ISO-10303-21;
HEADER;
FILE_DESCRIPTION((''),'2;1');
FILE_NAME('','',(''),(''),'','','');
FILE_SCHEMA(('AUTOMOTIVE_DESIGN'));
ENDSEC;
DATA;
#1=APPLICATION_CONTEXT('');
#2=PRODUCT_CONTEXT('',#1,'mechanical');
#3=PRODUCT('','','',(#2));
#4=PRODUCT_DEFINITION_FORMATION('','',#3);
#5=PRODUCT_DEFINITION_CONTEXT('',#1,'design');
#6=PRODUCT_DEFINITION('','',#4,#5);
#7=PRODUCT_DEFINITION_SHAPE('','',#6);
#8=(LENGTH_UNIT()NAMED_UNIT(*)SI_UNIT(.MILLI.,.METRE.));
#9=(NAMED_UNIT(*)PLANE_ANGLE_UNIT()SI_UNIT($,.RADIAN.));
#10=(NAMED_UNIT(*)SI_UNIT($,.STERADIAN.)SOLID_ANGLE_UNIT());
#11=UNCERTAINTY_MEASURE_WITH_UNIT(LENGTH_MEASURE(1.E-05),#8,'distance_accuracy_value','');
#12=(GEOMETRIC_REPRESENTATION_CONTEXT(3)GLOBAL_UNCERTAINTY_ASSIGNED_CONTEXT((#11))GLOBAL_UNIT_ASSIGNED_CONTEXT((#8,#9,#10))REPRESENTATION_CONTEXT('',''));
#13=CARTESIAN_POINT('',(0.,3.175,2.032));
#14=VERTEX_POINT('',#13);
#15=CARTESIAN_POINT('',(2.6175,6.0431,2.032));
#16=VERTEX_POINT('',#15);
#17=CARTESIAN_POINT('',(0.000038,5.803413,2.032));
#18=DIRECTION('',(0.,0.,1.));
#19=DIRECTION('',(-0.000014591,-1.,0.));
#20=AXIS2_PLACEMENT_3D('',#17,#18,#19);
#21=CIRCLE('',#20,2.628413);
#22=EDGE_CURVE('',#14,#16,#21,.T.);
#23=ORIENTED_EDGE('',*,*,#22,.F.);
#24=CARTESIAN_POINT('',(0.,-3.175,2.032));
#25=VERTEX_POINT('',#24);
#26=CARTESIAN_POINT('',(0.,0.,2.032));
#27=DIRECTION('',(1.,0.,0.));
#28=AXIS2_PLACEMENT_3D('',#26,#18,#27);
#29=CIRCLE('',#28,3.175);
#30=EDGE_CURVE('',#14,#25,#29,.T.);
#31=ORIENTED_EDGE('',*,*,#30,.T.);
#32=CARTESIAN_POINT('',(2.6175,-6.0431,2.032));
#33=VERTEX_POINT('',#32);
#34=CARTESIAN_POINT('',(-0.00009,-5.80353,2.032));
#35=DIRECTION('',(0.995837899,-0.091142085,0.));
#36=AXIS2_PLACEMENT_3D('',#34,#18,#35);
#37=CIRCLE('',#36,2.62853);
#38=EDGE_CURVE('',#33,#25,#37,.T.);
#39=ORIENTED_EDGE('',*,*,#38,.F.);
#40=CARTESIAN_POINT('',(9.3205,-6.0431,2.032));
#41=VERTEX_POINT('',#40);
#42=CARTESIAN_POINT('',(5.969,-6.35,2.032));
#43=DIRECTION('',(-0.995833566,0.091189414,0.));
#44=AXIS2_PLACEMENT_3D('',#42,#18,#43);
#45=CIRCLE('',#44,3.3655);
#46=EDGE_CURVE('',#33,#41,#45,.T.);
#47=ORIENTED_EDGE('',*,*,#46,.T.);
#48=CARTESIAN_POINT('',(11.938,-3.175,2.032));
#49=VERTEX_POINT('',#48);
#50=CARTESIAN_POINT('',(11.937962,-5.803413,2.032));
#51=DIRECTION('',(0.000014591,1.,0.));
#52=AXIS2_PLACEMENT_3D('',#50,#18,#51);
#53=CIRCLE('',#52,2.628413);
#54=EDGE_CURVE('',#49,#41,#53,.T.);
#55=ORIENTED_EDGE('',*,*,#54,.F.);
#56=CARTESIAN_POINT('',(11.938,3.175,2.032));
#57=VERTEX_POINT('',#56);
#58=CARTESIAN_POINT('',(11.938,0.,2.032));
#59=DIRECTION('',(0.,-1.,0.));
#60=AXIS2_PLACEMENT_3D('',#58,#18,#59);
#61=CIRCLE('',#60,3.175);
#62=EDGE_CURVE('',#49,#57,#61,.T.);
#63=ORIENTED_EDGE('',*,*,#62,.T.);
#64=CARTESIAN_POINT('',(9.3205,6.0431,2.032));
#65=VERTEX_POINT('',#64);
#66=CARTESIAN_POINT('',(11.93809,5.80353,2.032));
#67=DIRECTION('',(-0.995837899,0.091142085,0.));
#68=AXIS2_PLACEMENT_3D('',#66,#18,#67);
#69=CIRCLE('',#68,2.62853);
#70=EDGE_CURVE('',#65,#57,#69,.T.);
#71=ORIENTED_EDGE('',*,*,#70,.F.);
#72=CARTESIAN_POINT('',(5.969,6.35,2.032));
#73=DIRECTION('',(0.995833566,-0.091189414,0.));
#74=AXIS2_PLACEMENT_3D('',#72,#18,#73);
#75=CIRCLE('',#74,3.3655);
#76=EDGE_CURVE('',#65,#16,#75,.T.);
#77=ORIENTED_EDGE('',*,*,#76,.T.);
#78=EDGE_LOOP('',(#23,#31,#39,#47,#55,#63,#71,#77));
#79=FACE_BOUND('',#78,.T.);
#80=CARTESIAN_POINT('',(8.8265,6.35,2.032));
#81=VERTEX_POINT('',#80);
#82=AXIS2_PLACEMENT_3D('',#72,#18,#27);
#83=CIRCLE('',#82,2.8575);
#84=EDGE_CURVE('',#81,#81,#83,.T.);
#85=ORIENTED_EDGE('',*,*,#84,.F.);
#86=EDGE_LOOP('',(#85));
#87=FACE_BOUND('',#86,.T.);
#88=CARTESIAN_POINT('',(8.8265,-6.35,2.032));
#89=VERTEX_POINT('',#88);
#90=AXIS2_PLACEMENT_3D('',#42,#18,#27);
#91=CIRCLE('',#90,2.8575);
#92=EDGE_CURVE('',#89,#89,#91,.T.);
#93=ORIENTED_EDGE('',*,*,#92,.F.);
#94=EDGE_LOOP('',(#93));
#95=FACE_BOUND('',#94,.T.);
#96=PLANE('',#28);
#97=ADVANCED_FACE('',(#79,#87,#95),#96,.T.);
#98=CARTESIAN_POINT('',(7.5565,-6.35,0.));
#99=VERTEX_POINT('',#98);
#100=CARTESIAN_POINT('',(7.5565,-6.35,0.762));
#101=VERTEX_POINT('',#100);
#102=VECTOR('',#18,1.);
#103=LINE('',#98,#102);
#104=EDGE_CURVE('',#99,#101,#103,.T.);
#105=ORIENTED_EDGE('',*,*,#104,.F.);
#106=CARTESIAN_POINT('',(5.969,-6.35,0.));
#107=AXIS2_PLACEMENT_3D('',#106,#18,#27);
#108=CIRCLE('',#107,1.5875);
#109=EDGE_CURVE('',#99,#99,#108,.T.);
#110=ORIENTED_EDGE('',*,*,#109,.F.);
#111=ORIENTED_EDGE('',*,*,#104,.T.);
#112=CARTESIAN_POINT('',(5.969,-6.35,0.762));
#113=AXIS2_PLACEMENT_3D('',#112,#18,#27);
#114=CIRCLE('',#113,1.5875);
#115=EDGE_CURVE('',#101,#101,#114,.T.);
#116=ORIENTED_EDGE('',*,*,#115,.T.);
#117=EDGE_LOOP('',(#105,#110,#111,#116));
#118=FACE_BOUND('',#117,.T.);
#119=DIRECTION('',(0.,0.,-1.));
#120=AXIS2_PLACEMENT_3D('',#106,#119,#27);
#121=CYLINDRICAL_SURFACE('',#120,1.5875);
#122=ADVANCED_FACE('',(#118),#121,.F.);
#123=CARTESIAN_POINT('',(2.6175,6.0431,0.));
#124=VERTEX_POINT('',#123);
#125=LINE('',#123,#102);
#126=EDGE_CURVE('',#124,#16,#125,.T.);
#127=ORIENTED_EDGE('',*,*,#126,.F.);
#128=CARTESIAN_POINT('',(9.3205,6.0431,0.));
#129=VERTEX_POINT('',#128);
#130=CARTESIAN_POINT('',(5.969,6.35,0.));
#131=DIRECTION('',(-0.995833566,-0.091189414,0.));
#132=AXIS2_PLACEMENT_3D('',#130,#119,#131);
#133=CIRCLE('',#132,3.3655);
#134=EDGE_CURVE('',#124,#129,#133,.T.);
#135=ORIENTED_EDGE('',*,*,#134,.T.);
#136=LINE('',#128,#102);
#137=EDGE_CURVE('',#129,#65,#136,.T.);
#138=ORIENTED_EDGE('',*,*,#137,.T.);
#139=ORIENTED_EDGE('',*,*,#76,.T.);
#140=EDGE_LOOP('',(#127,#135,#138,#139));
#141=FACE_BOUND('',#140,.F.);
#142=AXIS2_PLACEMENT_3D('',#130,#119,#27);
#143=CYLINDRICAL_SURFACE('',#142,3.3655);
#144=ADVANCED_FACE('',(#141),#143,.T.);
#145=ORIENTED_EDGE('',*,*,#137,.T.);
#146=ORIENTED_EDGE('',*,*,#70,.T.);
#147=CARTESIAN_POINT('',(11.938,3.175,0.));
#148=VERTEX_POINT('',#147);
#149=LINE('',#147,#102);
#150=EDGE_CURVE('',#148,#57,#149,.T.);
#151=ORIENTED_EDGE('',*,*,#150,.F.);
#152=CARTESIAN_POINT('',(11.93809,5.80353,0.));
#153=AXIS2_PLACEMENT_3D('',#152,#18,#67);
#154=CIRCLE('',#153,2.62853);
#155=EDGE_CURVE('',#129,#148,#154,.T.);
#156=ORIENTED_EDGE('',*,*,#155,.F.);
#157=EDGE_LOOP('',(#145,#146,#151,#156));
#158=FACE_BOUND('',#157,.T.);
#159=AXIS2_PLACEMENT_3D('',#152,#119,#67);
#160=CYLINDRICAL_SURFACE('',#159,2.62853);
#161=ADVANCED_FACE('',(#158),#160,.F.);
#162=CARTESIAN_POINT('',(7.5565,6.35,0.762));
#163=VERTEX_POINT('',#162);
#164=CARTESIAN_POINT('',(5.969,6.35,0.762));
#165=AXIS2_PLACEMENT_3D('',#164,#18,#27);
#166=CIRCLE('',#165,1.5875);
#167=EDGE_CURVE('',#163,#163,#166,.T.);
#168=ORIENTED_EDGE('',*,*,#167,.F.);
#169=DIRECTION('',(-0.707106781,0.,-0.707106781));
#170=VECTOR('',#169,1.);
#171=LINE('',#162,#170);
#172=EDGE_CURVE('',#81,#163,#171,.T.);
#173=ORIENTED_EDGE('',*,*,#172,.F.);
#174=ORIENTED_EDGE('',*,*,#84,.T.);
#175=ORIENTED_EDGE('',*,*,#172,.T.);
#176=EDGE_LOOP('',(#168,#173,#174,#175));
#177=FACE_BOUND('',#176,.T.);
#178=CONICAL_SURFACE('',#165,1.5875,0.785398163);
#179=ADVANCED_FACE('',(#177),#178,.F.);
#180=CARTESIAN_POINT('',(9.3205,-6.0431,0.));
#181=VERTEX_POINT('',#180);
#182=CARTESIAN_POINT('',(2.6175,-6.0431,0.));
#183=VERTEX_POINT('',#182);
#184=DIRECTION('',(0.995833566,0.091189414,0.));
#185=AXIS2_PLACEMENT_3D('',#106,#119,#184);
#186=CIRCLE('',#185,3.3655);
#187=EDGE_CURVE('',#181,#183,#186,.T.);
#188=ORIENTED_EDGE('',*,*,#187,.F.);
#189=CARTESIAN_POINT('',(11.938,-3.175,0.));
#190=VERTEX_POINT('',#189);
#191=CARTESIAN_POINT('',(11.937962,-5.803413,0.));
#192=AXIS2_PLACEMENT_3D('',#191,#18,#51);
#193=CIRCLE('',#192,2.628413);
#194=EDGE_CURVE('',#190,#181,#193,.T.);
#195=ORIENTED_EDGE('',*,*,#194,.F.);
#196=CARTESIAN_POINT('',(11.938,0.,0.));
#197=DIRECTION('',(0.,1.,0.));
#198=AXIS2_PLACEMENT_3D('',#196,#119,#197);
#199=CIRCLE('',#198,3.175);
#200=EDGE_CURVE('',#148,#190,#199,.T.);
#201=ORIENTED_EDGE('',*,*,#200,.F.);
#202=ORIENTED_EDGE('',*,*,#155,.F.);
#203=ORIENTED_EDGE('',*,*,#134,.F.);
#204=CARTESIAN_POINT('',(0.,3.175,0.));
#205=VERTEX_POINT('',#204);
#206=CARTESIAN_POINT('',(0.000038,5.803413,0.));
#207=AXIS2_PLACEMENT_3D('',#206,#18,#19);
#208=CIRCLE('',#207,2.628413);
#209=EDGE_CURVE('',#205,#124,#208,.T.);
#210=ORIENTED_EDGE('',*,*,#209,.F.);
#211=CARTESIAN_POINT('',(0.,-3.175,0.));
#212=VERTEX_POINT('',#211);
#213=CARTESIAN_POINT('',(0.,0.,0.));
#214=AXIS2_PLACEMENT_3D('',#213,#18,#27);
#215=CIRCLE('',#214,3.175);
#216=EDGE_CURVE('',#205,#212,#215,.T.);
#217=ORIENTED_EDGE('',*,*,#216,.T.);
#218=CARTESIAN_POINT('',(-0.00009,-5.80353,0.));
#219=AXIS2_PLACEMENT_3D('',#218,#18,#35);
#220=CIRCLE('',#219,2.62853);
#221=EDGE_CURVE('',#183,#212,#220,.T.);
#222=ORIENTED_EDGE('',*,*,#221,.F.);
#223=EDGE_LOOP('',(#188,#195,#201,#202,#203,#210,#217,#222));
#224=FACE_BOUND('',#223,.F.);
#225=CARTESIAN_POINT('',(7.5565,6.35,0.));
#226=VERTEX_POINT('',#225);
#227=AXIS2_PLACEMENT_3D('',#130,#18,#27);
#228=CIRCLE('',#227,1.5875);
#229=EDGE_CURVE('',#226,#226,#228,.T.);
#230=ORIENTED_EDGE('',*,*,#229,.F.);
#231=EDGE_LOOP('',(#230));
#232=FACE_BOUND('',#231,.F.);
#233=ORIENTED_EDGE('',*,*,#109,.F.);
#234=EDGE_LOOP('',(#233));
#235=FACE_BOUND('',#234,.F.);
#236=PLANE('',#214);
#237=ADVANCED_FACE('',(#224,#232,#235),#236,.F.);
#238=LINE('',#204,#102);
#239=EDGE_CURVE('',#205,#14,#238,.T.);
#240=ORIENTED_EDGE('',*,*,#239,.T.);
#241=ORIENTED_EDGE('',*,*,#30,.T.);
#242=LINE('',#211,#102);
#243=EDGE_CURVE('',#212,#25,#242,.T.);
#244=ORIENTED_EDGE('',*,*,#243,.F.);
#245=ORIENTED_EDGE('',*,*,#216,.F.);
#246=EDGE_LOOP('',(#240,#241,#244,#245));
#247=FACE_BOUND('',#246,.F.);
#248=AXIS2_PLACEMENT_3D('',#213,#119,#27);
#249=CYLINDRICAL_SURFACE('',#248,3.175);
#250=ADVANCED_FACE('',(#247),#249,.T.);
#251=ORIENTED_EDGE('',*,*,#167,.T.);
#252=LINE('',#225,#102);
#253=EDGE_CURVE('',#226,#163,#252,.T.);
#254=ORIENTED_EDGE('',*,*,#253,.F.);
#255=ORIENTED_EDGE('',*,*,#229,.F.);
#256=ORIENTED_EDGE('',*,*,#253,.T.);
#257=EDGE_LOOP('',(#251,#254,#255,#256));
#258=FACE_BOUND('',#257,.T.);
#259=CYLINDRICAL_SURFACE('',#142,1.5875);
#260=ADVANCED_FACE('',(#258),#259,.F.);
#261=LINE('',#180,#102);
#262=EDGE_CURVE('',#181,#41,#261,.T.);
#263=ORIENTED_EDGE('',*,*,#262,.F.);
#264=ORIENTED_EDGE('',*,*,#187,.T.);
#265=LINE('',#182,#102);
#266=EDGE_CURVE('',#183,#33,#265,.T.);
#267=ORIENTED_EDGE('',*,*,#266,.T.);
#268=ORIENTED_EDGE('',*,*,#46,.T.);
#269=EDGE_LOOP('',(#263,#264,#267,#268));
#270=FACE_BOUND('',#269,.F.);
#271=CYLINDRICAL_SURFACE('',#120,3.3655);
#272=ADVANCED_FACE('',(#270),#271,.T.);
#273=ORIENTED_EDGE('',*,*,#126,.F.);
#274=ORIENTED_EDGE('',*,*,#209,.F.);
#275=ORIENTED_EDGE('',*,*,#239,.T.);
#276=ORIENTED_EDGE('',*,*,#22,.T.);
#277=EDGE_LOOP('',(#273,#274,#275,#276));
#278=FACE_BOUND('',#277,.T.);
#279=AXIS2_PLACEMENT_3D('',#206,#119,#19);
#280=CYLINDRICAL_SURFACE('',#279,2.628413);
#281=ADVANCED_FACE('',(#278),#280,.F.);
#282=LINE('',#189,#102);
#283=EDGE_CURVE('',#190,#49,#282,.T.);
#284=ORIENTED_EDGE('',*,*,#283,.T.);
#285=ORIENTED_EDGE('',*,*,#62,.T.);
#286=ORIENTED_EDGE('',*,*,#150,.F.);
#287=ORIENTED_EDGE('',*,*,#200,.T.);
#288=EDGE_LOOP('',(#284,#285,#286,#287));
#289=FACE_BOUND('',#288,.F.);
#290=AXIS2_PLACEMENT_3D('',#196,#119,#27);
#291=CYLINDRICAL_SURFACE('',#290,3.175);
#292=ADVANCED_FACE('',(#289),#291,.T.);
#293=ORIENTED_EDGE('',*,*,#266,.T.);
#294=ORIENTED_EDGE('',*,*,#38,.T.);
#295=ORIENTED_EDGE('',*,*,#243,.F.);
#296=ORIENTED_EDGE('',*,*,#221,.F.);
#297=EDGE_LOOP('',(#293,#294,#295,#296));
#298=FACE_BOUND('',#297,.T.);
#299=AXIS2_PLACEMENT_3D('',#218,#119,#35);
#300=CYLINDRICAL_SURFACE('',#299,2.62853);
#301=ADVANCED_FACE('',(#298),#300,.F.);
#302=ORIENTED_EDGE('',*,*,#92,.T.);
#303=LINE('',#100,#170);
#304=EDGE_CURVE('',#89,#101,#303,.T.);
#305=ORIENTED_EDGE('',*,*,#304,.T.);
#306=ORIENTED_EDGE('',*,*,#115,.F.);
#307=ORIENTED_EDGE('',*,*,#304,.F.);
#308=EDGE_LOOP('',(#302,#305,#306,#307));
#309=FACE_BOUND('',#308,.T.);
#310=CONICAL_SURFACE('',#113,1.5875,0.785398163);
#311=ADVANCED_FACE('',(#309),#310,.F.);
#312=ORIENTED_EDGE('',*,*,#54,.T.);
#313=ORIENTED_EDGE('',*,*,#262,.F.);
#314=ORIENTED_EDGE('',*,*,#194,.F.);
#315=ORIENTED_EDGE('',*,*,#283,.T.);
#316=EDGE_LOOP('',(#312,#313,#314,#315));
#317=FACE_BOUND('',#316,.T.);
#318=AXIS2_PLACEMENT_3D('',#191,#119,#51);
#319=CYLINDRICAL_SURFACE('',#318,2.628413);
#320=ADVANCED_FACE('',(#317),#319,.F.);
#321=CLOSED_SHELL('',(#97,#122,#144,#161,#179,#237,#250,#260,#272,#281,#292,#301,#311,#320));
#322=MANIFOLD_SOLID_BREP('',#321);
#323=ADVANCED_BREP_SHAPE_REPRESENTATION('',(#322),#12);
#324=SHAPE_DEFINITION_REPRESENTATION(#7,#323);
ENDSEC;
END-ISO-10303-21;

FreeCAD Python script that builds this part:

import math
import FreeCAD as App
import Part
import Sketcher
Q = App.Units.Quantity


def edges_at(feature, points):
    """Names of the edges that pass closest to the given points."""
    edges = feature.Shape.Edges
    near = lambda p: min(range(len(edges)), key=lambda i: edges[i].distToShape(Part.Vertex(*p))[0])
    return sorted({f"Edge{near(p) + 1}" for p in points})

doc = App.newDocument("Part")
body = doc.addObject("PartDesign::Body", "Body")

sketch1 = body.newObject("Sketcher::SketchObject", "Sketch")
sketch1.AttachmentSupport = (doc.getObject("XY_Plane"), [""])
sketch1.MapMode = "FlatFace"
sketch1.addGeometry([
    Part.ArcOfCircle(Part.Circle(App.Vector(0, 0, 0), App.Vector(0, 0, 1), 3.2), math.radians(90), math.radians(270)),
    Part.ArcOfCircle(Part.Circle(App.Vector(0, -5.8, 0), App.Vector(0, 0, 1), 2.6), math.radians(-5), math.radians(90)),
    Part.ArcOfCircle(Part.Circle(App.Vector(6, -6.3, 0), App.Vector(0, 0, 1), 3.4), math.radians(175), math.radians(365)),
    Part.ArcOfCircle(Part.Circle(App.Vector(11.9, -5.8, 0), App.Vector(0, 0, 1), 2.6), math.radians(90), math.radians(185)),
    Part.ArcOfCircle(Part.Circle(App.Vector(11.9, 0, 0), App.Vector(0, 0, 1), 3.2), math.radians(-90), math.radians(90)),
    Part.ArcOfCircle(Part.Circle(App.Vector(11.9, 5.8, 0), App.Vector(0, 0, 1), 2.6), math.radians(175), math.radians(270)),
    Part.ArcOfCircle(Part.Circle(App.Vector(6, 6.3, 0), App.Vector(0, 0, 1), 3.4), math.radians(-5), math.radians(185)),
    Part.ArcOfCircle(Part.Circle(App.Vector(0, 5.8, 0), App.Vector(0, 0, 1), 2.6), math.radians(-90), math.radians(5)),
    Part.Circle(App.Vector(6, 6.3, 0), App.Vector(0, 0, 1), 1.6),
    Part.Circle(App.Vector(6, -6.3, 0), App.Vector(0, 0, 1), 1.6),
], False)
sketch1.addConstraint([
    Sketcher.Constraint("Tangent", 0, 2, 1, 2),
    Sketcher.Constraint("Tangent", 1, 1, 2, 1),
    Sketcher.Constraint("Tangent", 2, 2, 3, 2),
    Sketcher.Constraint("Tangent", 3, 1, 4, 1),
    Sketcher.Constraint("Tangent", 4, 2, 5, 2),
    Sketcher.Constraint("Tangent", 5, 1, 6, 1),
    Sketcher.Constraint("Tangent", 6, 2, 7, 2),
    Sketcher.Constraint("Tangent", 7, 1, 0, 1),
    Sketcher.Constraint("Coincident", 0, 3, -1, 1),
    Sketcher.Constraint("Coincident", 8, 3, 6, 3),
    Sketcher.Constraint("Coincident", 9, 3, 2, 3),
    Sketcher.Constraint("Equal", 1, 3),
    Sketcher.Constraint("Equal", 0, 4),
    Sketcher.Constraint("Equal", 3, 5),
    Sketcher.Constraint("Equal", 2, 6),
    Sketcher.Constraint("Equal", 5, 7),
    Sketcher.Constraint("Equal", 8, 9),
    Sketcher.Constraint("Symmetric", 3, 3, 5, 3, -1),
    Sketcher.Constraint("PointOnObject", 1, 3, -2),
    Sketcher.Constraint("PointOnObject", 7, 3, -2),
    Sketcher.Constraint("Vertical", 3, 3, 4, 3),
    Sketcher.Constraint("Diameter", 8, Q("0.125 in")),
    Sketcher.Constraint("Radius", 0, Q("0.125 in")),
    Sketcher.Constraint("Radius", 2, Q("0.1325 in")),
    Sketcher.Constraint("DistanceY", 2, 3, 6, 3, Q("0.5 in")),
    Sketcher.Constraint("DistanceX", -1, 1, 3, 3, Q("0.47 in")),
])
pad1 = body.newObject("PartDesign::Pad", "Pad")
pad1.Profile = sketch1
pad1.Length = Q("0.08 in")
doc.recompute()

chamfer = body.newObject("PartDesign::Chamfer", "Chamfer")
chamfer.Base = (pad1, edges_at(pad1, [(4.381, 6.35, 2.032), (4.381, -6.35, 2.032)]))
chamfer.Size = Q("0.05 in")

doc.recompute()
